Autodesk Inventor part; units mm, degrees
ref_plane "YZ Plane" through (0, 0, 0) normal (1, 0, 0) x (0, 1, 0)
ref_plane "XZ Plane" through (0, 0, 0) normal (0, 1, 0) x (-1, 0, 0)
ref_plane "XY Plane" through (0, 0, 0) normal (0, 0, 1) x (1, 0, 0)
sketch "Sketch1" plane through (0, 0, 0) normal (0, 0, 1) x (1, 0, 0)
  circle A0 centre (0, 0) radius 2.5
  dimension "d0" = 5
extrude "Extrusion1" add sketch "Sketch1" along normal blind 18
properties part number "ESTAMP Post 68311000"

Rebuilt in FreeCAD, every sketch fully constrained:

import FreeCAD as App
import Part
import Sketcher

V = App.Vector
Q = App.Units.Quantity

doc = App.newDocument("Part")
body = doc.addObject("PartDesign::Body", "Body")

# Sketch on XY plane
sketch1 = body.newObject("Sketcher::SketchObject", "Sketch")
sketch1.AttachmentSupport = (doc.getObject("XY_Plane"), [""])
sketch1.MapMode = "FlatFace"
sketch1.addGeometry(Part.Circle(V(0, 0, 0), V(0, 0, 1), 2.5), False)
sketch1.addConstraint(Sketcher.Constraint("Coincident", 0, 3, -1, 1))
sketch1.addConstraint(Sketcher.Constraint("Diameter", 0, Q("5 mm")))
pad1 = body.newObject("PartDesign::Pad", "Pad")
pad1.Profile = sketch1
pad1.Length = 18

doc.recompute()
